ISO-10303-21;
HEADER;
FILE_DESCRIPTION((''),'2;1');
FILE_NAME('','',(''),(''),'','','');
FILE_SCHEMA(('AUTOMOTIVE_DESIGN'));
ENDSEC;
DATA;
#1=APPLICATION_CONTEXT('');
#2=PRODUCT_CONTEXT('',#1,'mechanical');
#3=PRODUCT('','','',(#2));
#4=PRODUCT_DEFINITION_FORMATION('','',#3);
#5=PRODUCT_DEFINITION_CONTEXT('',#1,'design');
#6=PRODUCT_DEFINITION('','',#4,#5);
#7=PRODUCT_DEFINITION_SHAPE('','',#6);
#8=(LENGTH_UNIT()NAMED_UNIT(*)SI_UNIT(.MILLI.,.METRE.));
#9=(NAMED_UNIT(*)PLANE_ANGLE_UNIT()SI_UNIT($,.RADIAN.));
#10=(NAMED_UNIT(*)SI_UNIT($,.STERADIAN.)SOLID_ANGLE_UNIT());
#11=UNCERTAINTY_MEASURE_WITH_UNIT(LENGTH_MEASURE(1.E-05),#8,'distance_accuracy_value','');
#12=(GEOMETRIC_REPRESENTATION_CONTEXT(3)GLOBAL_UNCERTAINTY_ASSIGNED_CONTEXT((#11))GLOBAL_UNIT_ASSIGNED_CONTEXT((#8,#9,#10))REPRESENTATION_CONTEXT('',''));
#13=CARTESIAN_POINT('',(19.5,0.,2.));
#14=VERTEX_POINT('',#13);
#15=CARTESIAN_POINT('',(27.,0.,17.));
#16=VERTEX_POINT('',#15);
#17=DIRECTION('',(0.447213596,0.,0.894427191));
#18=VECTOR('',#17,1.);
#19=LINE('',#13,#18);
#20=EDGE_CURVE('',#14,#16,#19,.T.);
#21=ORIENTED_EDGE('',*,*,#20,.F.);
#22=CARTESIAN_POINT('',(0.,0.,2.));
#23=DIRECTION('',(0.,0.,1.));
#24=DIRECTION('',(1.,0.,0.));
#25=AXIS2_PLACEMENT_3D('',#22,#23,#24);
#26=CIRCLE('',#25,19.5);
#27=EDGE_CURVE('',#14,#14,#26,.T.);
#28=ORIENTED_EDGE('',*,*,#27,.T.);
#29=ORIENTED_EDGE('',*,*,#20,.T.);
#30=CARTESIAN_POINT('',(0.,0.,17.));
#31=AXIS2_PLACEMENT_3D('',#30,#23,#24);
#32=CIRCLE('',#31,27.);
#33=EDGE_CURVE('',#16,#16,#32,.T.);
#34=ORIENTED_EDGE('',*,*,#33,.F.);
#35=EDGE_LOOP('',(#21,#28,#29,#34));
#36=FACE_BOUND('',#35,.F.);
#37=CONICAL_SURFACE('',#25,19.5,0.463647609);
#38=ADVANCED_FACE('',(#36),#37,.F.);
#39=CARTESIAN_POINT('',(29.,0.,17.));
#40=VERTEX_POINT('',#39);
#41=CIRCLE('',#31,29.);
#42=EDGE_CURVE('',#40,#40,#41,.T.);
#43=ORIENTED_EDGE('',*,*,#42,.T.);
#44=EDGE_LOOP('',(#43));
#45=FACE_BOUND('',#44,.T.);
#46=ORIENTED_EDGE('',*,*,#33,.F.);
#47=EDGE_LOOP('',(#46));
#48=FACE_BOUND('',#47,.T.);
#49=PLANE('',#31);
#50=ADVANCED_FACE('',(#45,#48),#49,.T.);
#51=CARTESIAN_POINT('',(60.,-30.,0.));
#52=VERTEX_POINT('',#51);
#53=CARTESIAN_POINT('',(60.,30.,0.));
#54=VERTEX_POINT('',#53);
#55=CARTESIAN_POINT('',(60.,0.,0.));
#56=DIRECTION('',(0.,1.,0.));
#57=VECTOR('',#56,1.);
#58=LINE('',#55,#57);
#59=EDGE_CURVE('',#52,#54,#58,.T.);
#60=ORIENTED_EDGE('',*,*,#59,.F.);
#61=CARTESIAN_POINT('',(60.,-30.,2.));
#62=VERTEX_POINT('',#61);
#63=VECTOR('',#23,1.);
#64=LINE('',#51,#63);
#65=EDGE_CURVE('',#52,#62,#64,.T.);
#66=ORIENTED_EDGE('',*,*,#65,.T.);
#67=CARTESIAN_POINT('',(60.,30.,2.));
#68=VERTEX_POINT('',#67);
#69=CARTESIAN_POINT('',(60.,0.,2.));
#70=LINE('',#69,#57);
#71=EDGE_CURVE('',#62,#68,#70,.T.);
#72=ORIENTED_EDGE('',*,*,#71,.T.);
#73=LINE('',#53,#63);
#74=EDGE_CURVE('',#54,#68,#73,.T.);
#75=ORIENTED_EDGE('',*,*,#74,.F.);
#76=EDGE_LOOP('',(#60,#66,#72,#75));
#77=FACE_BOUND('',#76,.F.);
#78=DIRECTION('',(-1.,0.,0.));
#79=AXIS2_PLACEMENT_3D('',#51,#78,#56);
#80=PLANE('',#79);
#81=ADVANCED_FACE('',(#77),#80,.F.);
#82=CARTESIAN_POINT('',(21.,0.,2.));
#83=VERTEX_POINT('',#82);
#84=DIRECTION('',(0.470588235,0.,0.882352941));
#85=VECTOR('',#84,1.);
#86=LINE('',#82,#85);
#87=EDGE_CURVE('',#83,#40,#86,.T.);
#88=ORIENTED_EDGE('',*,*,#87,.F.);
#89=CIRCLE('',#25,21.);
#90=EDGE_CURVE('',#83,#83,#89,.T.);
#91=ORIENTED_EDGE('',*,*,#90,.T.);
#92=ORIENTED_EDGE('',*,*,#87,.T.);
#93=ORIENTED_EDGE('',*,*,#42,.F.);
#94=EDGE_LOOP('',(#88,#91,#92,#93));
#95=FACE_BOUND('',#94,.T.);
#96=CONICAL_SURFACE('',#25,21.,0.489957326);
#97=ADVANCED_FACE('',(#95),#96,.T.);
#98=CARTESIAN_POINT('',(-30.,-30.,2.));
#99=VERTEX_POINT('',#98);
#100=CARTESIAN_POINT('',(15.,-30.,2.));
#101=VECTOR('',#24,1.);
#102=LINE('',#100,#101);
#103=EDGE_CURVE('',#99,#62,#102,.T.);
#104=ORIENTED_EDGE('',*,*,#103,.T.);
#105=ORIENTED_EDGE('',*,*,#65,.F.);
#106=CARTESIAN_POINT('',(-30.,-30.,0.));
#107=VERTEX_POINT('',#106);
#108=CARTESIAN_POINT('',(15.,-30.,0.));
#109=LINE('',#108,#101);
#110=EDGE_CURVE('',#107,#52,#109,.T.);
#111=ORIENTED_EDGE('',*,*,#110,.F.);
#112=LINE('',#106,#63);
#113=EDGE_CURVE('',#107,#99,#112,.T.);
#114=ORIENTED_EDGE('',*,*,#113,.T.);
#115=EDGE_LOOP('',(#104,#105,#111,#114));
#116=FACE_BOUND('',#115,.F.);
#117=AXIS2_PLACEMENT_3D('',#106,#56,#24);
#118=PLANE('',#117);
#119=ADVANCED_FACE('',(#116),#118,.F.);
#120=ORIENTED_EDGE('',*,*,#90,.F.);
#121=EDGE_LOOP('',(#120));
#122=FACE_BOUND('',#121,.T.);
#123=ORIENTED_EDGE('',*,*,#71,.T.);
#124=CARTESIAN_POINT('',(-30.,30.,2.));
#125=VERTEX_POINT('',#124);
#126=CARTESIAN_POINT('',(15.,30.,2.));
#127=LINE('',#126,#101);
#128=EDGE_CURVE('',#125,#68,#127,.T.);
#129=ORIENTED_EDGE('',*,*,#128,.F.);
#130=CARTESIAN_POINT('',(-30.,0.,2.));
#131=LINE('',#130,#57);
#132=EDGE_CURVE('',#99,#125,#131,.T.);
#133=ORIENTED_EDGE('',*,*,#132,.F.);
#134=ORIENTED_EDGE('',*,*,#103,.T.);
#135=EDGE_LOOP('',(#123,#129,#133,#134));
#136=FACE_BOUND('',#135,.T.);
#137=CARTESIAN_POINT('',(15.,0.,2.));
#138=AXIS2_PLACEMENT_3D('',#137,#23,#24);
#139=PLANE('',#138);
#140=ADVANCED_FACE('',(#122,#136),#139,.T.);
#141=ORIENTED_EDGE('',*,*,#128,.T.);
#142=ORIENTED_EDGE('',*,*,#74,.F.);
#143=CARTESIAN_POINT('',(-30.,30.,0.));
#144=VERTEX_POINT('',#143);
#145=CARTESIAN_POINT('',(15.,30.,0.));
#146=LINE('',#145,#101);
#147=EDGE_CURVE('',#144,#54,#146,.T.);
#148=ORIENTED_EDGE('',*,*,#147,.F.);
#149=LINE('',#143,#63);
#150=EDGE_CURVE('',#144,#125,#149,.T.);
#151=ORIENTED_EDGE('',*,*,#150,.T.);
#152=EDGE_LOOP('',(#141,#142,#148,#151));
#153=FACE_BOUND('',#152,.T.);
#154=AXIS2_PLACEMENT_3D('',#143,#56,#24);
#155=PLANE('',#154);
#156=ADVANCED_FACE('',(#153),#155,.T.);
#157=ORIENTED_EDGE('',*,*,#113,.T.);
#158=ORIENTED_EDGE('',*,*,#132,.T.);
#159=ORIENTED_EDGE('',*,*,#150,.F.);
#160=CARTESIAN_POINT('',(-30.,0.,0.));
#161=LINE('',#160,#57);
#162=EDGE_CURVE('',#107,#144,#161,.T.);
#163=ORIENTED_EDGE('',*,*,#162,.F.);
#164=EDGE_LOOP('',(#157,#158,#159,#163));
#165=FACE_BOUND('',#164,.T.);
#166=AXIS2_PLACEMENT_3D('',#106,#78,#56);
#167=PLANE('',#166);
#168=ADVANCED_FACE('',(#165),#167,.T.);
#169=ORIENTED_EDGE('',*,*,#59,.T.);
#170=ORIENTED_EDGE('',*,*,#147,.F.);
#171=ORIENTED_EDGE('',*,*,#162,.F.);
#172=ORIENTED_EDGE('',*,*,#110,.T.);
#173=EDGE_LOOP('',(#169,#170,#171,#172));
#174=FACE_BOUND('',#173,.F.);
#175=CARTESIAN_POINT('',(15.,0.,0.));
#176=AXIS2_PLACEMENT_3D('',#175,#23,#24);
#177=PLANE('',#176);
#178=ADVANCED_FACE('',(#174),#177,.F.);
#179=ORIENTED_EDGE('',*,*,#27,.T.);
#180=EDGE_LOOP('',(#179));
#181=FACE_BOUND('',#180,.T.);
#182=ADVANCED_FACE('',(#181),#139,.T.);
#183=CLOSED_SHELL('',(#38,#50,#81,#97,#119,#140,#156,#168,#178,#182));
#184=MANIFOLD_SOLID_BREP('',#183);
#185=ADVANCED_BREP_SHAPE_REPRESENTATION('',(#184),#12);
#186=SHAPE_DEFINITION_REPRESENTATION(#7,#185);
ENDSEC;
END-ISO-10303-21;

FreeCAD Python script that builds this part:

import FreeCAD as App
import Part
import Sketcher

doc = App.newDocument("Part")
body = doc.addObject("PartDesign::Body", "Body")

# Sketch on XY plane
sketch1 = body.newObject("Sketcher::SketchObject", "Sketch")
sketch1.AttachmentSupport = (doc.getObject("XY_Plane"), [""])
sketch1.MapMode = "FlatFace"
sketch1.addGeometry(Part.LineSegment(App.Vector(-30, 30, 0), App.Vector(-30, -30, 0)), False)
sketch1.addGeometry(Part.LineSegment(App.Vector(-30, -30, 0), App.Vector(60, -30, 0)), False)
sketch1.addGeometry(Part.LineSegment(App.Vector(60, -30, 0), App.Vector(60, 30, 0)), False)
sketch1.addGeometry(Part.LineSegment(App.Vector(60, 30, 0), App.Vector(-30, 30, 0)), False)
sketch1.addConstraint(Sketcher.Constraint("Coincident", 0, 2, 1, 1))
sketch1.addConstraint(Sketcher.Constraint("Coincident", 1, 2, 2, 1))
sketch1.addConstraint(Sketcher.Constraint("Coincident", 2, 2, 3, 1))
sketch1.addConstraint(Sketcher.Constraint("Coincident", 3, 2, 0, 1))
sketch1.addConstraint(Sketcher.Constraint("Vertical", 0))
sketch1.addConstraint(Sketcher.Constraint("Horizontal", 1))
sketch1.addConstraint(Sketcher.Constraint("Vertical", 2))
sketch1.addConstraint(Sketcher.Constraint("Horizontal", 3))
sketch1.addConstraint(Sketcher.Constraint("DistanceX", 1, 1, 1, 2, 90.0))
sketch1.addConstraint(Sketcher.Constraint("DistanceY", 0, 2, 0, 1, 60.0))
sketch1.addConstraint(Sketcher.Constraint("DistanceX", 0, 2, -1, 1, 30.0))
sketch1.addConstraint(Sketcher.Constraint("DistanceY", 0, 2, -1, 1, 30.0))
pad1 = body.newObject("PartDesign::Pad", "Pad")
pad1.Profile = sketch1
pad1.Length = 2
body2 = doc.addObject("PartDesign::Body", "Body001")

# Sketch on XZ plane
sketch2 = body2.newObject("Sketcher::SketchObject", "Sketch001")
sketch2.AttachmentSupport = (doc.getObject("XZ_Plane001"), [""])
sketch2.MapMode = "FlatFace"
sketch2.addGeometry(Part.LineSegment(App.Vector(0, 0, 0), App.Vector(20, 0, 0)), False)
sketch2.addGeometry(Part.LineSegment(App.Vector(20, 0, 0), App.Vector(27, 15, 0)), False)
sketch2.addGeometry(Part.LineSegment(App.Vector(27, 15, 0), App.Vector(0, 15, 0)), False)
sketch2.addGeometry(Part.LineSegment(App.Vector(0, 15, 0), App.Vector(0, 0, 0)), False)
sketch2.addConstraint(Sketcher.Constraint("Coincident", 0, 2, 1, 1))
sketch2.addConstraint(Sketcher.Constraint("Coincident", 1, 2, 2, 1))
sketch2.addConstraint(Sketcher.Constraint("Coincident", 2, 2, 3, 1))
sketch2.addConstraint(Sketcher.Constraint("Coincident", 3, 2, 0, 1))
sketch2.addConstraint(Sketcher.Constraint("Horizontal", 0))
sketch2.addConstraint(Sketcher.Constraint("Horizontal", 2))
sketch2.addConstraint(Sketcher.Constraint("Vertical", 3))
sketch2.addConstraint(Sketcher.Constraint("Coincident", 3, 2, -1, 1))
sketch2.addConstraint(Sketcher.Constraint("DistanceX", 2, 2, 2, 1, 27.0))
sketch2.addConstraint(Sketcher.Constraint("DistanceY", 3, 2, 3, 1, 15.0))
sketch2.addConstraint(Sketcher.Constraint("DistanceX", 0, 1, 0, 2, 19.5))
revolution = body2.newObject("PartDesign::Revolution", "Revolution")
revolution.Profile = sketch2
revolution.ReferenceAxis = (sketch2, ["V_Axis"])
revolution.Angle = 360
body3 = doc.addObject("PartDesign::Body", "Body002")

# Sketch on XZ plane
sketch3 = body3.newObject("Sketcher::SketchObject", "Sketch002")
sketch3.AttachmentSupport = (doc.getObject("XZ_Plane002"), [""])
sketch3.MapMode = "FlatFace"
sketch3.addGeometry(Part.LineSegment(App.Vector(0, 0, 0), App.Vector(21, 0, 0)), False)
sketch3.addGeometry(Part.LineSegment(App.Vector(21, 0, 0), App.Vector(29, 15, 0)), False)
sketch3.addGeometry(Part.LineSegment(App.Vector(29, 15, 0), App.Vector(0, 15, 0)), False)
sketch3.addGeometry(Part.LineSegment(App.Vector(0, 15, 0), App.Vector(0, 0, 0)), False)
sketch3.addConstraint(Sketcher.Constraint("Coincident", 0, 2, 1, 1))
sketch3.addConstraint(Sketcher.Constraint("Coincident", 1, 2, 2, 1))
sketch3.addConstraint(Sketcher.Constraint("Coincident", 2, 2, 3, 1))
sketch3.addConstraint(Sketcher.Constraint("Coincident", 3, 2, 0, 1))
sketch3.addConstraint(Sketcher.Constraint("Horizontal", 0))
sketch3.addConstraint(Sketcher.Constraint("Horizontal", 2))
sketch3.addConstraint(Sketcher.Constraint("Vertical", 3))
sketch3.addConstraint(Sketcher.Constraint("Coincident", 3, 2, -1, 1))
sketch3.addConstraint(Sketcher.Constraint("DistanceX", 0, 1, 0, 2, 21.0))
sketch3.addConstraint(Sketcher.Constraint("DistanceX", 2, 2, 2, 1, 29.0))
sketch3.addConstraint(Sketcher.Constraint("DistanceY", 3, 2, 3, 1, 15.0))
revolution2 = body3.newObject("PartDesign::Revolution", "Revolution001")
revolution2.Profile = sketch3
revolution2.ReferenceAxis = (sketch3, ["V_Axis"])
revolution2.Angle = 360
doc.recompute()

boolean = body3.newObject("PartDesign::Boolean", "Boolean")
boolean.Type = "Cut"
boolean.addObjects([body2])
body4 = doc.addObject("PartDesign::Body", "Body003")
doc.recompute()

body3.Placement = App.Placement(App.Vector(0, 0, 2), App.Rotation(App.Vector(0, 0, 1), 0))
boolean2 = body4.newObject("PartDesign::Boolean", "Boolean001")
boolean2.Type = "Fuse"
boolean2.addObjects([body3])
doc.recompute()

boolean3 = body4.newObject("PartDesign::Boolean", "Boolean002")
boolean3.Type = "Fuse"
boolean3.addObjects([body])

doc.recompute()
